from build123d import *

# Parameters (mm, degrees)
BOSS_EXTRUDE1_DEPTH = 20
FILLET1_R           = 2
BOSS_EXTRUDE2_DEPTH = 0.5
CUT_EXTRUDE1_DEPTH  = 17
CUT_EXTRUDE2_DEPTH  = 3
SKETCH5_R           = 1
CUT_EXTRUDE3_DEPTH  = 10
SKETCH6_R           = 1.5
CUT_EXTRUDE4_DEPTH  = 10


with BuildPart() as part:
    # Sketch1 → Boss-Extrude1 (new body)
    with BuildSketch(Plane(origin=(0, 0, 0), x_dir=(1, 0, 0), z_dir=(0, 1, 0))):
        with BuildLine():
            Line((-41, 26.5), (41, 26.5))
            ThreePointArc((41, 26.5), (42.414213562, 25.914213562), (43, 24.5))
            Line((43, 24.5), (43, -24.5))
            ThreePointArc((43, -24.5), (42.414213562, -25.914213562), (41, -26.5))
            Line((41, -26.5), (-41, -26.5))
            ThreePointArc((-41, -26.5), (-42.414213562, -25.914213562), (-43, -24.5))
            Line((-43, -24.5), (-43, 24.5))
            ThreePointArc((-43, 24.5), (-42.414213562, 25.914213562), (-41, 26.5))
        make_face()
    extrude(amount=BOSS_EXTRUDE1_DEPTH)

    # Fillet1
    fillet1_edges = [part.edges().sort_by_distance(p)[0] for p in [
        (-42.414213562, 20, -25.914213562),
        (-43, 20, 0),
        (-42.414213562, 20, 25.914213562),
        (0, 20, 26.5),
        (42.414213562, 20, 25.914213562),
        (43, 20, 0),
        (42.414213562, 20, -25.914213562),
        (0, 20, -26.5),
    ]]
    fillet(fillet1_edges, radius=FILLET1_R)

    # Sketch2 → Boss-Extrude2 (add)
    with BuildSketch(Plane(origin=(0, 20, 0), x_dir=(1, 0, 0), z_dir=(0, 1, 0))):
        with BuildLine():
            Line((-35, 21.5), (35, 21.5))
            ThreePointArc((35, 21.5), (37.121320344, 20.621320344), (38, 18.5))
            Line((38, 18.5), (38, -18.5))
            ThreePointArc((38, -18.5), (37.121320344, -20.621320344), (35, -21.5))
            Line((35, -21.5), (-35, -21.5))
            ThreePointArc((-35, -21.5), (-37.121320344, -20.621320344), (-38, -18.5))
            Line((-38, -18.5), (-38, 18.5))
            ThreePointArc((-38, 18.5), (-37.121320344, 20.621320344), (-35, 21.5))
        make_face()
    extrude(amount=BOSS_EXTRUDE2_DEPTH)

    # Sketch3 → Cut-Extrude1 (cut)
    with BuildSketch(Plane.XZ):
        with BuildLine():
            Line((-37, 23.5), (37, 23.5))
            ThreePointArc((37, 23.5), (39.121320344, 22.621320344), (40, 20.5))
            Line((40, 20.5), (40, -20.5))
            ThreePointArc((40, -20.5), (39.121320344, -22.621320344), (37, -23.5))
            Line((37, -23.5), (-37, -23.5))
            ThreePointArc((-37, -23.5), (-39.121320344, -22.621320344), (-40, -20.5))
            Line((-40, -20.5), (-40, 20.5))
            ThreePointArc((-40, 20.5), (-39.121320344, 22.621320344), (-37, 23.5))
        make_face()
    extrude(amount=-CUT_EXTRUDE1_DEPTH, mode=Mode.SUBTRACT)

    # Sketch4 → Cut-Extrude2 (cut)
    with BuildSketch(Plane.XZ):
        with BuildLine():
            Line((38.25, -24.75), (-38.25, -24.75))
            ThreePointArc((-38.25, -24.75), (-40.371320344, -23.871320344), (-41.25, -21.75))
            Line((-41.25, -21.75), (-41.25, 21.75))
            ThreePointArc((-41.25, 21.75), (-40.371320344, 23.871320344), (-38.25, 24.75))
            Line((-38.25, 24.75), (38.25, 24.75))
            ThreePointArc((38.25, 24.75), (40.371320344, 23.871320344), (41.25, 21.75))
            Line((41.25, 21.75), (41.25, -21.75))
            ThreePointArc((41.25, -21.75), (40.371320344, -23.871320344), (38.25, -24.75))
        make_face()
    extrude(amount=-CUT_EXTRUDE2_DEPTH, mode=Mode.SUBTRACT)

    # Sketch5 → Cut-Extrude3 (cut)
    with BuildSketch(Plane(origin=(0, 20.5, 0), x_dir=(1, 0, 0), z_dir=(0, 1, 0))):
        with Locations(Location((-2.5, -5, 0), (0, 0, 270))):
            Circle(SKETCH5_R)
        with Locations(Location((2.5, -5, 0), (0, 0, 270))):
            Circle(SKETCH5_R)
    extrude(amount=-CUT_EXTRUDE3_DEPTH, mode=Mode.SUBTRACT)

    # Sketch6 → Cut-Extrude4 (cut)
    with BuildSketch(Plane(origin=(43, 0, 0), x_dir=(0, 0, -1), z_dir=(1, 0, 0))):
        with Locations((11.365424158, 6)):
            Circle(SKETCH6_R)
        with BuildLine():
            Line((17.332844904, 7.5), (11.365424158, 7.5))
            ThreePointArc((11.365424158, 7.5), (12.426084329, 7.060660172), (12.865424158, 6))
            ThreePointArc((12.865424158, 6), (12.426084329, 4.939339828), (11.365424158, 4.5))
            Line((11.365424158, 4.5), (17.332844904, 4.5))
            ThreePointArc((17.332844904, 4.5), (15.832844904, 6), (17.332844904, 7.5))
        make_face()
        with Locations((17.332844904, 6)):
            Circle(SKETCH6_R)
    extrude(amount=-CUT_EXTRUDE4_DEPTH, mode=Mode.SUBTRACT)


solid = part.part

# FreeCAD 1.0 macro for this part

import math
import FreeCAD as App
import Part
import Sketcher
Q = App.Units.Quantity


def edges_at(feature, points):
    """Names of the edges that pass closest to the given points."""
    edges = feature.Shape.Edges
    near = lambda p: min(range(len(edges)), key=lambda i: edges[i].distToShape(Part.Vertex(*p))[0])
    return sorted({f"Edge{near(p) + 1}" for p in points})

doc = App.newDocument("Part")
params = doc.addObject("Spreadsheet::Sheet", "Params")
for row, (alias, value) in enumerate([
    ("sketch1_radius", "2 mm"),
    ("sketch1_width", "82 mm"),
    ("sketch1_height", "49 mm"),
    ("pad1_length", "20 mm"),
    ("fillet_radius", "2 mm"),
    ("sketch2_radius", "3 mm"),
    ("sketch2_width", "70 mm"),
    ("sketch2_height", "37 mm"),
    ("pad2_length", "0.5 mm"),
    ("sketch3_radius", "3 mm"),
    ("sketch3_width", "74 mm"),
    ("sketch3_height", "41 mm"),
    ("pocket1_length", "17 mm"),
    ("sketch4_radius", "3 mm"),
    ("sketch4_width", "76.5 mm"),
    ("sketch4_height", "43.5 mm"),
    ("pocket2_length", "3 mm"),
    ("sketch5_diameter", "2 mm"),
    ("pocket3_length", "10 mm"),
    ("sketch6_radius", "1.5 mm"),
    ("pocket4_length", "10 mm"),
], start=1):
    params.set(f"A{row}", alias)
    params.set(f"B{row}", "=" + value)
    params.setAlias(f"B{row}", alias)

body = doc.addObject("PartDesign::Body", "Body")

# Sketch on XZ plane
sketch1 = body.newObject("Sketcher::SketchObject", "Sketch")
sketch1.AttachmentSupport = (doc.getObject("XZ_Plane"), [""])
sketch1.MapMode = "FlatFace"
sketch1.addGeometry(Part.LineSegment(App.Vector(41, -26.5, 0), App.Vector(-41, -26.5, 0)), False)
sketch1.addGeometry(Part.ArcOfCircle(Part.Circle(App.Vector(-41, -24.5, 0), App.Vector(0, 0, 1), 2), math.radians(-180), math.radians(-90)), False)
sketch1.addGeometry(Part.LineSegment(App.Vector(-43, -24.5, 0), App.Vector(-43, 24.5, 0)), False)
sketch1.addGeometry(Part.ArcOfCircle(Part.Circle(App.Vector(-41, 24.5, 0), App.Vector(0, 0, 1), 2), math.radians(90), math.radians(180)), False)
sketch1.addGeometry(Part.LineSegment(App.Vector(-41, 26.5, 0), App.Vector(41, 26.5, 0)), False)
sketch1.addGeometry(Part.ArcOfCircle(Part.Circle(App.Vector(41, 24.5, 0), App.Vector(0, 0, 1), 2), math.radians(0), math.radians(90)), False)
sketch1.addGeometry(Part.LineSegment(App.Vector(43, 24.5, 0), App.Vector(43, -24.5, 0)), False)
sketch1.addGeometry(Part.ArcOfCircle(Part.Circle(App.Vector(41, -24.5, 0), App.Vector(0, 0, 1), 2), math.radians(-90), math.radians(0)), False)
sketch1.addConstraint(Sketcher.Constraint("Tangent", 0, 2, 1, 2))
sketch1.addConstraint(Sketcher.Constraint("Tangent", 1, 1, 2, 1))
sketch1.addConstraint(Sketcher.Constraint("Tangent", 2, 2, 3, 2))
sketch1.addConstraint(Sketcher.Constraint("Tangent", 3, 1, 4, 1))
sketch1.addConstraint(Sketcher.Constraint("Tangent", 4, 2, 5, 2))
sketch1.addConstraint(Sketcher.Constraint("Tangent", 5, 1, 6, 1))
sketch1.addConstraint(Sketcher.Constraint("Tangent", 6, 2, 7, 2))
sketch1.addConstraint(Sketcher.Constraint("Tangent", 7, 1, 0, 1))
sketch1.addConstraint(Sketcher.Constraint("Horizontal", 0))
sketch1.addConstraint(Sketcher.Constraint("Vertical", 2))
sketch1.addConstraint(Sketcher.Constraint("Horizontal", 4))
sketch1.addConstraint(Sketcher.Constraint("Vertical", 6))
sketch1.addConstraint(Sketcher.Constraint("Equal", 1, 3))
sketch1.addConstraint(Sketcher.Constraint("Equal", 3, 5))
sketch1.addConstraint(Sketcher.Constraint("Equal", 5, 7))
sketch1.addConstraint(Sketcher.Constraint("Symmetric", 1, 3, 5, 3, -1, 1))
sketch1.addConstraint(Sketcher.Constraint("Radius", 1, Q("2 mm")))
sketch1.addConstraint(Sketcher.Constraint("DistanceX", 0, 2, 0, 1, Q("82 mm")))
sketch1.addConstraint(Sketcher.Constraint("DistanceY", 2, 1, 2, 2, Q("49 mm")))
sketch1.setExpression("Constraints[16]", "Params.sketch1_radius")
sketch1.setExpression("Constraints[17]", "Params.sketch1_width")
sketch1.setExpression("Constraints[18]", "Params.sketch1_height")
pad1 = body.newObject("PartDesign::Pad", "Pad")
pad1.Profile = sketch1
pad1.setExpression("Length", "Params.pad1_length")
pad1.Reversed = True
doc.recompute()

fillet = body.newObject("PartDesign::Fillet", "Fillet")
fillet.Base = (pad1, edges_at(pad1, [
    (-42.414, 20, -25.914),
    (-43, 20, 0),
    (-42.414, 20, 25.914),
    (0, 20, 26.5),
    (42.414, 20, 25.914),
    (43, 20, 0),
    (42.414, 20, -25.914),
    (0, 20, -26.5),
]))
fillet.setExpression("Radius", "Params.fillet_radius")

# Sketch on XZ plane
sketch2 = body.newObject("Sketcher::SketchObject", "Sketch001")
sketch2.AttachmentSupport = (doc.getObject("XZ_Plane"), [""])
sketch2.MapMode = "FlatFace"
sketch2.AttachmentOffset = App.Placement(App.Vector(0, 0, -20), App.Rotation())
sketch2.addGeometry(Part.LineSegment(App.Vector(35, -21.5, 0), App.Vector(-35, -21.5, 0)), False)
sketch2.addGeometry(Part.ArcOfCircle(Part.Circle(App.Vector(-35, -18.5, 0), App.Vector(0, 0, 1), 3), math.radians(180), math.radians(270)), False)
sketch2.addGeometry(Part.LineSegment(App.Vector(-38, -18.5, 0), App.Vector(-38, 18.5, 0)), False)
sketch2.addGeometry(Part.ArcOfCircle(Part.Circle(App.Vector(-35, 18.5, 0), App.Vector(0, 0, 1), 3), math.radians(90), math.radians(180)), False)
sketch2.addGeometry(Part.LineSegment(App.Vector(-35, 21.5, 0), App.Vector(35, 21.5, 0)), False)
sketch2.addGeometry(Part.ArcOfCircle(Part.Circle(App.Vector(35, 18.5, 0), App.Vector(0, 0, 1), 3), math.radians(0), math.radians(90)), False)
sketch2.addGeometry(Part.LineSegment(App.Vector(38, 18.5, 0), App.Vector(38, -18.5, 0)), False)
sketch2.addGeometry(Part.ArcOfCircle(Part.Circle(App.Vector(35, -18.5, 0), App.Vector(0, 0, 1), 3), math.radians(-90), math.radians(0)), False)
sketch2.addConstraint(Sketcher.Constraint("Tangent", 0, 2, 1, 2))
sketch2.addConstraint(Sketcher.Constraint("Tangent", 1, 1, 2, 1))
sketch2.addConstraint(Sketcher.Constraint("Tangent", 2, 2, 3, 2))
sketch2.addConstraint(Sketcher.Constraint("Tangent", 3, 1, 4, 1))
sketch2.addConstraint(Sketcher.Constraint("Tangent", 4, 2, 5, 2))
sketch2.addConstraint(Sketcher.Constraint("Tangent", 5, 1, 6, 1))
sketch2.addConstraint(Sketcher.Constraint("Tangent", 6, 2, 7, 2))
sketch2.addConstraint(Sketcher.Constraint("Tangent", 7, 1, 0, 1))
sketch2.addConstraint(Sketcher.Constraint("Horizontal", 0))
sketch2.addConstraint(Sketcher.Constraint("Vertical", 2))
sketch2.addConstraint(Sketcher.Constraint("Horizontal", 4))
sketch2.addConstraint(Sketcher.Constraint("Vertical", 6))
sketch2.addConstraint(Sketcher.Constraint("Equal", 1, 3))
sketch2.addConstraint(Sketcher.Constraint("Equal", 3, 5))
sketch2.addConstraint(Sketcher.Constraint("Equal", 5, 7))
sketch2.addConstraint(Sketcher.Constraint("Symmetric", 1, 3, 5, 3, -1, 1))
sketch2.addConstraint(Sketcher.Constraint("Radius", 1, Q("3 mm")))
sketch2.addConstraint(Sketcher.Constraint("DistanceX", 0, 2, 0, 1, Q("70 mm")))
sketch2.addConstraint(Sketcher.Constraint("DistanceY", 2, 1, 2, 2, Q("37 mm")))
sketch2.setExpression("Constraints[16]", "Params.sketch2_radius")
sketch2.setExpression("Constraints[17]", "Params.sketch2_width")
sketch2.setExpression("Constraints[18]", "Params.sketch2_height")
pad2 = body.newObject("PartDesign::Pad", "Pad001")
pad2.Profile = sketch2
pad2.setExpression("Length", "Params.pad2_length")
pad2.Reversed = True

# Sketch on XZ plane
sketch3 = body.newObject("Sketcher::SketchObject", "Sketch002")
sketch3.AttachmentSupport = (doc.getObject("XZ_Plane"), [""])
sketch3.MapMode = "FlatFace"
sketch3.addGeometry(Part.LineSegment(App.Vector(37, 23.5, 0), App.Vector(-37, 23.5, 0)), False)
sketch3.addGeometry(Part.ArcOfCircle(Part.Circle(App.Vector(-37, 20.5, 0), App.Vector(0, 0, 1), 3), math.radians(90), math.radians(180)), False)
sketch3.addGeometry(Part.LineSegment(App.Vector(-40, 20.5, 0), App.Vector(-40, -20.5, 0)), False)
sketch3.addGeometry(Part.ArcOfCircle(Part.Circle(App.Vector(-37, -20.5, 0), App.Vector(0, 0, 1), 3), math.radians(180), math.radians(270)), False)
sketch3.addGeometry(Part.LineSegment(App.Vector(-37, -23.5, 0), App.Vector(37, -23.5, 0)), False)
sketch3.addGeometry(Part.ArcOfCircle(Part.Circle(App.Vector(37, -20.5, 0), App.Vector(0, 0, 1), 3), math.radians(-90), math.radians(0)), False)
sketch3.addGeometry(Part.LineSegment(App.Vector(40, -20.5, 0), App.Vector(40, 20.5, 0)), False)
sketch3.addGeometry(Part.ArcOfCircle(Part.Circle(App.Vector(37, 20.5, 0), App.Vector(0, 0, 1), 3), math.radians(0), math.radians(90)), False)
sketch3.addConstraint(Sketcher.Constraint("Tangent", 0, 2, 1, 1))
sketch3.addConstraint(Sketcher.Constraint("Tangent", 1, 2, 2, 1))
sketch3.addConstraint(Sketcher.Constraint("Tangent", 2, 2, 3, 1))
sketch3.addConstraint(Sketcher.Constraint("Tangent", 3, 2, 4, 1))
sketch3.addConstraint(Sketcher.Constraint("Tangent", 4, 2, 5, 1))
sketch3.addConstraint(Sketcher.Constraint("Tangent", 5, 2, 6, 1))
sketch3.addConstraint(Sketcher.Constraint("Tangent", 6, 2, 7, 1))
sketch3.addConstraint(Sketcher.Constraint("Tangent", 7, 2, 0, 1))
sketch3.addConstraint(Sketcher.Constraint("Horizontal", 0))
sketch3.addConstraint(Sketcher.Constraint("Vertical", 2))
sketch3.addConstraint(Sketcher.Constraint("Horizontal", 4))
sketch3.addConstraint(Sketcher.Constraint("Vertical", 6))
sketch3.addConstraint(Sketcher.Constraint("Equal", 1, 3))
sketch3.addConstraint(Sketcher.Constraint("Equal", 3, 5))
sketch3.addConstraint(Sketcher.Constraint("Equal", 5, 7))
sketch3.addConstraint(Sketcher.Constraint("Symmetric", 1, 3, 5, 3, -1, 1))
sketch3.addConstraint(Sketcher.Constraint("Radius", 1, Q("3 mm")))
sketch3.addConstraint(Sketcher.Constraint("DistanceX", 0, 2, 0, 1, Q("74 mm")))
sketch3.addConstraint(Sketcher.Constraint("DistanceY", 2, 2, 2, 1, Q("41 mm")))
sketch3.setExpression("Constraints[16]", "Params.sketch3_radius")
sketch3.setExpression("Constraints[17]", "Params.sketch3_width")
sketch3.setExpression("Constraints[18]", "Params.sketch3_height")
pocket1 = body.newObject("PartDesign::Pocket", "Pocket")
pocket1.Profile = sketch3
pocket1.setExpression("Length", "Params.pocket1_length")

# Sketch on XZ plane
sketch4 = body.newObject("Sketcher::SketchObject", "Sketch003")
sketch4.AttachmentSupport = (doc.getObject("XZ_Plane"), [""])
sketch4.MapMode = "FlatFace"
sketch4.addGeometry(Part.LineSegment(App.Vector(-38.2, -24.8, 0), App.Vector(38.2, -24.8, 0)), False)
sketch4.addGeometry(Part.ArcOfCircle(Part.Circle(App.Vector(38.3, -21.8, 0), App.Vector(0, 0, 1), 3), math.radians(-90), math.radians(0)), False)
sketch4.addGeometry(Part.LineSegment(App.Vector(41.2, -21.8, 0), App.Vector(41.2, 21.8, 0)), False)
sketch4.addGeometry(Part.ArcOfCircle(Part.Circle(App.Vector(38.3, 21.8, 0), App.Vector(0, 0, 1), 3), math.radians(0), math.radians(90)), False)
sketch4.addGeometry(Part.LineSegment(App.Vector(38.2, 24.8, 0), App.Vector(-38.2, 24.8, 0)), False)
sketch4.addGeometry(Part.ArcOfCircle(Part.Circle(App.Vector(-38.3, 21.8, 0), App.Vector(0, 0, 1), 3), math.radians(90), math.radians(180)), False)
sketch4.addGeometry(Part.LineSegment(App.Vector(-41.2, 21.8, 0), App.Vector(-41.2, -21.8, 0)), False)
sketch4.addGeometry(Part.ArcOfCircle(Part.Circle(App.Vector(-38.3, -21.8, 0), App.Vector(0, 0, 1), 3), math.radians(180), math.radians(270)), False)
sketch4.addConstraint(Sketcher.Constraint("Tangent", 0, 2, 1, 1))
sketch4.addConstraint(Sketcher.Constraint("Tangent", 1, 2, 2, 1))
sketch4.addConstraint(Sketcher.Constraint("Tangent", 2, 2, 3, 1))
sketch4.addConstraint(Sketcher.Constraint("Tangent", 3, 2, 4, 1))
sketch4.addConstraint(Sketcher.Constraint("Tangent", 4, 2, 5, 1))
sketch4.addConstraint(Sketcher.Constraint("Tangent", 5, 2, 6, 1))
sketch4.addConstraint(Sketcher.Constraint("Tangent", 6, 2, 7, 1))
sketch4.addConstraint(Sketcher.Constraint("Tangent", 7, 2, 0, 1))
sketch4.addConstraint(Sketcher.Constraint("Horizontal", 0))
sketch4.addConstraint(Sketcher.Constraint("Vertical", 2))
sketch4.addConstraint(Sketcher.Constraint("Horizontal", 4))
sketch4.addConstraint(Sketcher.Constraint("Vertical", 6))
sketch4.addConstraint(Sketcher.Constraint("Equal", 1, 3))
sketch4.addConstraint(Sketcher.Constraint("Equal", 3, 5))
sketch4.addConstraint(Sketcher.Constraint("Equal", 5, 7))
sketch4.addConstraint(Sketcher.Constraint("Symmetric", 1, 3, 5, 3, -1, 1))
sketch4.addConstraint(Sketcher.Constraint("Radius", 1, Q("3 mm")))
sketch4.addConstraint(Sketcher.Constraint("DistanceX", 0, 1, 0, 2, Q("76.5 mm")))
sketch4.addConstraint(Sketcher.Constraint("DistanceY", 2, 1, 2, 2, Q("43.5 mm")))
sketch4.setExpression("Constraints[16]", "Params.sketch4_radius")
sketch4.setExpression("Constraints[17]", "Params.sketch4_width")
sketch4.setExpression("Constraints[18]", "Params.sketch4_height")
pocket2 = body.newObject("PartDesign::Pocket", "Pocket001")
pocket2.Profile = sketch4
pocket2.setExpression("Length", "Params.pocket2_length")

# Sketch on XZ plane
sketch5 = body.newObject("Sketcher::SketchObject", "Sketch004")
sketch5.AttachmentSupport = (doc.getObject("XZ_Plane"), [""])
sketch5.MapMode = "FlatFace"
sketch5.AttachmentOffset = App.Placement(App.Vector(0, 0, -20.5), App.Rotation())
sketch5.addGeometry(Part.Circle(App.Vector(-2.5, 5, 0), App.Vector(0, 0, 1), 1), False)
sketch5.addGeometry(Part.Circle(App.Vector(2.5, 5, 0), App.Vector(0, 0, 1), 1), False)
sketch5.addConstraint(Sketcher.Constraint("Equal", 0, 1))
sketch5.addConstraint(Sketcher.Constraint("Symmetric", 0, 3, 1, 3, -2))
sketch5.addConstraint(Sketcher.Constraint("Diameter", 0, Q("2 mm")))
sketch5.addConstraint(Sketcher.Constraint("DistanceY", -1, 1, 0, 3, Q("5 mm")))
sketch5.addConstraint(Sketcher.Constraint("DistanceX", 0, 3, 1, 3, Q("5 mm")))
sketch5.setExpression("Constraints[2]", "Params.sketch5_diameter")
pocket3 = body.newObject("PartDesign::Pocket", "Pocket002")
pocket3.Profile = sketch5
pocket3.setExpression("Length", "Params.pocket3_length")
pocket3.Reversed = True

# Sketch on YZ plane
sketch6 = body.newObject("Sketcher::SketchObject", "Sketch005")
sketch6.AttachmentSupport = (doc.getObject("YZ_Plane"), [""])
sketch6.MapMode = "FlatFace"
sketch6.AttachmentOffset = App.Placement(App.Vector(0, 0, 43), App.Rotation())
sketch6.addGeometry(Part.ArcOfCircle(Part.Circle(App.Vector(6, -11.4, 0), App.Vector(0, 0, 1), 1.5), math.radians(0), math.radians(180)), False)
sketch6.addGeometry(Part.LineSegment(App.Vector(4.5, -11.4, 0), App.Vector(4.5, -17.3, 0)), False)
sketch6.addGeometry(Part.ArcOfCircle(Part.Circle(App.Vector(6, -17.3, 0), App.Vector(0, 0, 1), 1.5), math.radians(180), math.radians(360)), False)
sketch6.addGeometry(Part.LineSegment(App.Vector(7.5, -17.3, 0), App.Vector(7.5, -11.4, 0)), False)
sketch6.addConstraint(Sketcher.Constraint("Tangent", 0, 2, 1, 1))
sketch6.addConstraint(Sketcher.Constraint("Tangent", 1, 2, 2, 1))
sketch6.addConstraint(Sketcher.Constraint("Tangent", 2, 2, 3, 1))
sketch6.addConstraint(Sketcher.Constraint("Tangent", 3, 2, 0, 1))
sketch6.addConstraint(Sketcher.Constraint("Vertical", 1))
sketch6.addConstraint(Sketcher.Constraint("Vertical", 3))
sketch6.addConstraint(Sketcher.Constraint("Radius", 0, Q("1.5 mm")))
sketch6.addConstraint(Sketcher.Constraint("DistanceX", -1, 1, 0, 3, Q("6 mm")))
sketch6.addConstraint(Sketcher.Constraint("DistanceY", 1, 2, 1, 1, Q("5.967421 mm")))
sketch6.addConstraint(Sketcher.Constraint("DistanceY", 0, 3, -1, 1, Q("11.365424 mm")))
sketch6.setExpression("Constraints[6]", "Params.sketch6_radius")
pocket4 = body.newObject("PartDesign::Pocket", "Pocket003")
pocket4.Profile = sketch6
pocket4.setExpression("Length", "Params.pocket4_length")

doc.recompute()
